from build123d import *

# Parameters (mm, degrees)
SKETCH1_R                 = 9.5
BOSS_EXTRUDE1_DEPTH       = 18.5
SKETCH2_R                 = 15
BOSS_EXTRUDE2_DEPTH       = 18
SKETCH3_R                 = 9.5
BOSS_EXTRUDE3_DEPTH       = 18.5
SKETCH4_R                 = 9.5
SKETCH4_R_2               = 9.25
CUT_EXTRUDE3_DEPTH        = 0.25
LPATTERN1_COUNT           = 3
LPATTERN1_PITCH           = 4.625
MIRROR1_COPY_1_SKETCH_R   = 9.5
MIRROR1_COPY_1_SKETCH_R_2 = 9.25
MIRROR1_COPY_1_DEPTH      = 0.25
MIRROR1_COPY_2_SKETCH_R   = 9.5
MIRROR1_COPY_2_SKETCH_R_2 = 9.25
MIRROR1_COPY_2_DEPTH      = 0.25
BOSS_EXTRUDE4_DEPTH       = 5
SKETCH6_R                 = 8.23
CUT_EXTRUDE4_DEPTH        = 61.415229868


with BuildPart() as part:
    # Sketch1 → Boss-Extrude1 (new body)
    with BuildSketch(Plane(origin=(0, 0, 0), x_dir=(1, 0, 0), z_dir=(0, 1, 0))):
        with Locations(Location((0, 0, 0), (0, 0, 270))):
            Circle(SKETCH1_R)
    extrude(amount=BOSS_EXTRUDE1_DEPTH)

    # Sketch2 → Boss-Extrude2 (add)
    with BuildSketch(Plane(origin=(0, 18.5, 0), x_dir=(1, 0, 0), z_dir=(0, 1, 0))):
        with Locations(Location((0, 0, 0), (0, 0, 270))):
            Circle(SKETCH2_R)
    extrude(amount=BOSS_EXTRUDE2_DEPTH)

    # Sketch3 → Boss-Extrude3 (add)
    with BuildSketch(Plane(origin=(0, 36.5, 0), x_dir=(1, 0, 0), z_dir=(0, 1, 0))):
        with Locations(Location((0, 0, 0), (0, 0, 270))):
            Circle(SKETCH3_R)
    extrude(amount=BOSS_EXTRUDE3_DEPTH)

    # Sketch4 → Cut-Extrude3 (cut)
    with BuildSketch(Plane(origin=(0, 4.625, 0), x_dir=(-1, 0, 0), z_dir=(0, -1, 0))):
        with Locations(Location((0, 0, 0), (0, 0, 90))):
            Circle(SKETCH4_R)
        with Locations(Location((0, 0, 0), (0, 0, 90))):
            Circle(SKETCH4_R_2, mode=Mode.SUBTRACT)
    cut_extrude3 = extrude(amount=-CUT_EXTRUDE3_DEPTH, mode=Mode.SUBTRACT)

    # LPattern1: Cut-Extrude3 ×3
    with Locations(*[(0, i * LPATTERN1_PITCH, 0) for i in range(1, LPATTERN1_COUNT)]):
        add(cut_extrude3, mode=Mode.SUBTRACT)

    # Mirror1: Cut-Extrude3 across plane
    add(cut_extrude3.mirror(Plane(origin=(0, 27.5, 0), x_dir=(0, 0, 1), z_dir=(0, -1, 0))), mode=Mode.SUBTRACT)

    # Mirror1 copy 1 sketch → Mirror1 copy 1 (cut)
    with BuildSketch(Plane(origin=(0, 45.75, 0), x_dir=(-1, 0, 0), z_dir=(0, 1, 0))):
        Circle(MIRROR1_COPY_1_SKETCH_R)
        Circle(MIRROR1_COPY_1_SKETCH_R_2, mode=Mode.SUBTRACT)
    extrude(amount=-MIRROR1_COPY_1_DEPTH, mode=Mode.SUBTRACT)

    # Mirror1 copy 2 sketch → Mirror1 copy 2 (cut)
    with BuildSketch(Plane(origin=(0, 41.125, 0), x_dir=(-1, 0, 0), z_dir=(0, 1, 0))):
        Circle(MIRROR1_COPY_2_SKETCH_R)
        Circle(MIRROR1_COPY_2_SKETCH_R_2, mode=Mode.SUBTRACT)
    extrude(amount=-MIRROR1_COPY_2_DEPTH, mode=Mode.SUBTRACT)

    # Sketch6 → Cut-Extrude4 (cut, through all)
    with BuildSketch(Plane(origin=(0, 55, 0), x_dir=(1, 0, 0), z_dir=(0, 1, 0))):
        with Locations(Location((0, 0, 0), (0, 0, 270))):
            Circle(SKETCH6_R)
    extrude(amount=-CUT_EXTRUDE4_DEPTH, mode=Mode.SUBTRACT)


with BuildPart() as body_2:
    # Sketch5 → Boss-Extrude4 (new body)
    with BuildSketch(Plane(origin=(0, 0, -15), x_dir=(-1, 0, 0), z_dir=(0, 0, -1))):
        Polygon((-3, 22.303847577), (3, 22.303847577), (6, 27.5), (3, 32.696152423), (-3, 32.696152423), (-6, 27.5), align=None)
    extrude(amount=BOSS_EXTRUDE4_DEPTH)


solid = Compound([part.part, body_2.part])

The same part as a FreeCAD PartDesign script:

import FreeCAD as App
import Part
import Sketcher

V = App.Vector
Q = App.Units.Quantity

doc = App.newDocument("Part")
body = doc.addObject("PartDesign::Body", "Body")

sketch1 = body.newObject("Sketcher::SketchObject", "Sketch")
sketch1.AttachmentSupport = (doc.getObject("XZ_Plane"), [""])
sketch1.MapMode = "FlatFace"
sketch1.addGeometry(Part.Circle(V(0, 0, 0), V(0, 0, 1), 10), False)
sketch1.addConstraint([
    Sketcher.Constraint("Coincident", 0, 3, -1, 1),
    Sketcher.Constraint("Diameter", 0, Q("19 mm")),
])
pad1 = body.newObject("PartDesign::Pad", "Pad")
pad1.Profile = sketch1
pad1.Length = 18.5
pad1.Reversed = True

sketch2 = body.newObject("Sketcher::SketchObject", "Sketch001")
sketch2.AttachmentSupport = (doc.getObject("XZ_Plane"), [""])
sketch2.MapMode = "FlatFace"
sketch2.AttachmentOffset = App.Placement(V(0, 0, -18.5), App.Rotation())
sketch2.addGeometry(Part.Circle(V(0, 0, 0), V(0, 0, 1), 15), False)
sketch2.addConstraint([
    Sketcher.Constraint("Coincident", 0, 3, -1, 1),
    Sketcher.Constraint("Diameter", 0, Q("30 mm")),
])
pad2 = body.newObject("PartDesign::Pad", "Pad001")
pad2.Profile = sketch2
pad2.Length = 18
pad2.Reversed = True

sketch3 = body.newObject("Sketcher::SketchObject", "Sketch002")
sketch3.AttachmentSupport = (doc.getObject("XZ_Plane"), [""])
sketch3.MapMode = "FlatFace"
sketch3.AttachmentOffset = App.Placement(V(0, 0, -36.5), App.Rotation())
sketch3.addGeometry(Part.Circle(V(0, 0, 0), V(0, 0, 1), 10), False)
sketch3.addConstraint([
    Sketcher.Constraint("Coincident", 0, 3, -1, 1),
    Sketcher.Constraint("Diameter", 0, Q("19 mm")),
])
pad3 = body.newObject("PartDesign::Pad", "Pad002")
pad3.Profile = sketch3
pad3.Length = 18.5
pad3.Reversed = True

sketch4 = body.newObject("Sketcher::SketchObject", "Sketch003")
sketch4.AttachmentSupport = (doc.getObject("XZ_Plane"), [""])
sketch4.MapMode = "FlatFace"
sketch4.AttachmentOffset = App.Placement(V(0, 0, -4.625), App.Rotation())
sketch4.addGeometry([
    Part.Circle(V(0, 0, 0), V(0, 0, 1), 10),
    Part.Circle(V(0, 0, 0), V(0, 0, 1), 9),
], False)
sketch4.addConstraint([
    Sketcher.Constraint("Coincident", 0, 3, -1, 1),
    Sketcher.Constraint("Coincident", 1, 3, -1, 1),
    Sketcher.Constraint("Diameter", 0, Q("19 mm")),
    Sketcher.Constraint("Diameter", 1, Q("18.5 mm")),
])
pocket1 = body.newObject("PartDesign::Pocket", "Pocket")
pocket1.Profile = sketch4
pocket1.Length = 0.25
doc.recompute()

linearpattern = body.newObject("PartDesign::LinearPattern", "LinearPattern")
linearpattern.Originals = [pocket1]
linearpattern.Direction = (doc.getObject("Y_Axis"), [""])
linearpattern.Mode = "offset"
linearpattern.Offset = 4.625
linearpattern.Occurrences = 3
body.Tip = linearpattern
doc.recompute()

datumplane = body.newObject("PartDesign::Plane", "DatumPlane")
datumplane.AttachmentSupport = (doc.getObject("XZ_Plane"), [""])
datumplane.MapMode = "FlatFace"
datumplane.AttachmentOffset = App.Placement(V(0, 0, -27.5), App.Rotation())
mirrored = body.newObject("PartDesign::Mirrored", "Mirrored")
mirrored.Originals = [pocket1]
mirrored.MirrorPlane = (datumplane, [""])
body.Tip = mirrored

sketch5 = body.newObject("Sketcher::SketchObject", "Sketch004")
sketch5.AttachmentSupport = (doc.getObject("XZ_Plane"), [""])
sketch5.MapMode = "FlatFace"
sketch5.AttachmentOffset = App.Placement(V(0, 0, -45.75), App.Rotation())
sketch5.addGeometry([
    Part.Circle(V(0, 0, 0), V(0, 0, 1), 10),
    Part.Circle(V(0, 0, 0), V(0, 0, 1), 9),
], False)
sketch5.addConstraint([
    Sketcher.Constraint("Coincident", 0, 3, -1, 1),
    Sketcher.Constraint("Coincident", 1, 3, -1, 1),
    Sketcher.Constraint("Diameter", 0, Q("19 mm")),
    Sketcher.Constraint("Diameter", 1, Q("18.5 mm")),
])
pocket2 = body.newObject("PartDesign::Pocket", "Pocket001")
pocket2.Profile = sketch5
pocket2.Length = 0.25
pocket2.Reversed = True

sketch6 = body.newObject("Sketcher::SketchObject", "Sketch005")
sketch6.AttachmentSupport = (doc.getObject("XZ_Plane"), [""])
sketch6.MapMode = "FlatFace"
sketch6.AttachmentOffset = App.Placement(V(0, 0, -41.125), App.Rotation())
sketch6.addGeometry([
    Part.Circle(V(0, 0, 0), V(0, 0, 1), 10),
    Part.Circle(V(0, 0, 0), V(0, 0, 1), 9),
], False)
sketch6.addConstraint([
    Sketcher.Constraint("Coincident", 0, 3, -1, 1),
    Sketcher.Constraint("Coincident", 1, 3, -1, 1),
    Sketcher.Constraint("Diameter", 0, Q("19 mm")),
    Sketcher.Constraint("Diameter", 1, Q("18.5 mm")),
])
pocket3 = body.newObject("PartDesign::Pocket", "Pocket002")
pocket3.Profile = sketch6
pocket3.Length = 0.25
pocket3.Reversed = True

sketch7 = body.newObject("Sketcher::SketchObject", "Sketch006")
sketch7.AttachmentSupport = (doc.getObject("XZ_Plane"), [""])
sketch7.MapMode = "FlatFace"
sketch7.AttachmentOffset = App.Placement(V(0, 0, -55), App.Rotation())
sketch7.addGeometry(Part.Circle(V(0, 0, 0), V(0, 0, 1), 8), False)
sketch7.addConstraint([
    Sketcher.Constraint("Coincident", 0, 3, -1, 1),
    Sketcher.Constraint("Diameter", 0, Q("16.46 mm")),
])
pocket4 = body.newObject("PartDesign::Pocket", "Pocket003")
pocket4.Profile = sketch7
pocket4.Type = "ThroughAll"
pocket4.Reversed = True
body2 = doc.addObject("PartDesign::Body", "Body001")

sketch8 = body2.newObject("Sketcher::SketchObject", "Sketch007")
sketch8.AttachmentSupport = (doc.getObject("XY_Plane001"), [""])
sketch8.MapMode = "FlatFace"
sketch8.AttachmentOffset = App.Placement(V(0, 0, -15), App.Rotation())
sketch8.addGeometry([
    Part.LineSegment(V(3, 22, 0), V(-3, 22, 0)),
    Part.LineSegment(V(-3, 22, 0), V(-6, 28, 0)),
    Part.LineSegment(V(-6, 28, 0), V(-3, 33, 0)),
    Part.LineSegment(V(-3, 33, 0), V(3, 33, 0)),
    Part.LineSegment(V(3, 33, 0), V(6, 28, 0)),
    Part.LineSegment(V(6, 28, 0), V(3, 22, 0)),
], False)
sketch8.addConstraint([
    Sketcher.Constraint("Coincident", 0, 2, 1, 1),
    Sketcher.Constraint("Coincident", 1, 2, 2, 1),
    Sketcher.Constraint("Coincident", 2, 2, 3, 1),
    Sketcher.Constraint("Coincident", 3, 2, 4, 1),
    Sketcher.Constraint("Coincident", 4, 2, 5, 1),
    Sketcher.Constraint("Coincident", 5, 2, 0, 1),
    Sketcher.Constraint("Horizontal", 0),
    Sketcher.Constraint("Horizontal", 3),
    Sketcher.Constraint("Symmetric", 1, 2, 4, 2, -2),
    Sketcher.Constraint("Parallel", 1, 4),
    Sketcher.Constraint("Parallel", 2, 5),
    Sketcher.Constraint("Vertical", 0, 2, 2, 2),
    Sketcher.Constraint("Vertical", 3, 2, 5, 2),
    Sketcher.Constraint("DistanceX", 0, 2, 0, 1, Q("6 mm")),
    Sketcher.Constraint("Angle", 1, Q("120 deg")),
    Sketcher.Constraint("Distance", 1, Q("6 mm")),
    Sketcher.Constraint("DistanceY", -1, 1, 1, 2, Q("27.5 mm")),
])
pad4 = body2.newObject("PartDesign::Pad", "Pad003")
pad4.Profile = sketch8
pad4.Length = 5
pad4.Reversed = True

doc.recompute()
